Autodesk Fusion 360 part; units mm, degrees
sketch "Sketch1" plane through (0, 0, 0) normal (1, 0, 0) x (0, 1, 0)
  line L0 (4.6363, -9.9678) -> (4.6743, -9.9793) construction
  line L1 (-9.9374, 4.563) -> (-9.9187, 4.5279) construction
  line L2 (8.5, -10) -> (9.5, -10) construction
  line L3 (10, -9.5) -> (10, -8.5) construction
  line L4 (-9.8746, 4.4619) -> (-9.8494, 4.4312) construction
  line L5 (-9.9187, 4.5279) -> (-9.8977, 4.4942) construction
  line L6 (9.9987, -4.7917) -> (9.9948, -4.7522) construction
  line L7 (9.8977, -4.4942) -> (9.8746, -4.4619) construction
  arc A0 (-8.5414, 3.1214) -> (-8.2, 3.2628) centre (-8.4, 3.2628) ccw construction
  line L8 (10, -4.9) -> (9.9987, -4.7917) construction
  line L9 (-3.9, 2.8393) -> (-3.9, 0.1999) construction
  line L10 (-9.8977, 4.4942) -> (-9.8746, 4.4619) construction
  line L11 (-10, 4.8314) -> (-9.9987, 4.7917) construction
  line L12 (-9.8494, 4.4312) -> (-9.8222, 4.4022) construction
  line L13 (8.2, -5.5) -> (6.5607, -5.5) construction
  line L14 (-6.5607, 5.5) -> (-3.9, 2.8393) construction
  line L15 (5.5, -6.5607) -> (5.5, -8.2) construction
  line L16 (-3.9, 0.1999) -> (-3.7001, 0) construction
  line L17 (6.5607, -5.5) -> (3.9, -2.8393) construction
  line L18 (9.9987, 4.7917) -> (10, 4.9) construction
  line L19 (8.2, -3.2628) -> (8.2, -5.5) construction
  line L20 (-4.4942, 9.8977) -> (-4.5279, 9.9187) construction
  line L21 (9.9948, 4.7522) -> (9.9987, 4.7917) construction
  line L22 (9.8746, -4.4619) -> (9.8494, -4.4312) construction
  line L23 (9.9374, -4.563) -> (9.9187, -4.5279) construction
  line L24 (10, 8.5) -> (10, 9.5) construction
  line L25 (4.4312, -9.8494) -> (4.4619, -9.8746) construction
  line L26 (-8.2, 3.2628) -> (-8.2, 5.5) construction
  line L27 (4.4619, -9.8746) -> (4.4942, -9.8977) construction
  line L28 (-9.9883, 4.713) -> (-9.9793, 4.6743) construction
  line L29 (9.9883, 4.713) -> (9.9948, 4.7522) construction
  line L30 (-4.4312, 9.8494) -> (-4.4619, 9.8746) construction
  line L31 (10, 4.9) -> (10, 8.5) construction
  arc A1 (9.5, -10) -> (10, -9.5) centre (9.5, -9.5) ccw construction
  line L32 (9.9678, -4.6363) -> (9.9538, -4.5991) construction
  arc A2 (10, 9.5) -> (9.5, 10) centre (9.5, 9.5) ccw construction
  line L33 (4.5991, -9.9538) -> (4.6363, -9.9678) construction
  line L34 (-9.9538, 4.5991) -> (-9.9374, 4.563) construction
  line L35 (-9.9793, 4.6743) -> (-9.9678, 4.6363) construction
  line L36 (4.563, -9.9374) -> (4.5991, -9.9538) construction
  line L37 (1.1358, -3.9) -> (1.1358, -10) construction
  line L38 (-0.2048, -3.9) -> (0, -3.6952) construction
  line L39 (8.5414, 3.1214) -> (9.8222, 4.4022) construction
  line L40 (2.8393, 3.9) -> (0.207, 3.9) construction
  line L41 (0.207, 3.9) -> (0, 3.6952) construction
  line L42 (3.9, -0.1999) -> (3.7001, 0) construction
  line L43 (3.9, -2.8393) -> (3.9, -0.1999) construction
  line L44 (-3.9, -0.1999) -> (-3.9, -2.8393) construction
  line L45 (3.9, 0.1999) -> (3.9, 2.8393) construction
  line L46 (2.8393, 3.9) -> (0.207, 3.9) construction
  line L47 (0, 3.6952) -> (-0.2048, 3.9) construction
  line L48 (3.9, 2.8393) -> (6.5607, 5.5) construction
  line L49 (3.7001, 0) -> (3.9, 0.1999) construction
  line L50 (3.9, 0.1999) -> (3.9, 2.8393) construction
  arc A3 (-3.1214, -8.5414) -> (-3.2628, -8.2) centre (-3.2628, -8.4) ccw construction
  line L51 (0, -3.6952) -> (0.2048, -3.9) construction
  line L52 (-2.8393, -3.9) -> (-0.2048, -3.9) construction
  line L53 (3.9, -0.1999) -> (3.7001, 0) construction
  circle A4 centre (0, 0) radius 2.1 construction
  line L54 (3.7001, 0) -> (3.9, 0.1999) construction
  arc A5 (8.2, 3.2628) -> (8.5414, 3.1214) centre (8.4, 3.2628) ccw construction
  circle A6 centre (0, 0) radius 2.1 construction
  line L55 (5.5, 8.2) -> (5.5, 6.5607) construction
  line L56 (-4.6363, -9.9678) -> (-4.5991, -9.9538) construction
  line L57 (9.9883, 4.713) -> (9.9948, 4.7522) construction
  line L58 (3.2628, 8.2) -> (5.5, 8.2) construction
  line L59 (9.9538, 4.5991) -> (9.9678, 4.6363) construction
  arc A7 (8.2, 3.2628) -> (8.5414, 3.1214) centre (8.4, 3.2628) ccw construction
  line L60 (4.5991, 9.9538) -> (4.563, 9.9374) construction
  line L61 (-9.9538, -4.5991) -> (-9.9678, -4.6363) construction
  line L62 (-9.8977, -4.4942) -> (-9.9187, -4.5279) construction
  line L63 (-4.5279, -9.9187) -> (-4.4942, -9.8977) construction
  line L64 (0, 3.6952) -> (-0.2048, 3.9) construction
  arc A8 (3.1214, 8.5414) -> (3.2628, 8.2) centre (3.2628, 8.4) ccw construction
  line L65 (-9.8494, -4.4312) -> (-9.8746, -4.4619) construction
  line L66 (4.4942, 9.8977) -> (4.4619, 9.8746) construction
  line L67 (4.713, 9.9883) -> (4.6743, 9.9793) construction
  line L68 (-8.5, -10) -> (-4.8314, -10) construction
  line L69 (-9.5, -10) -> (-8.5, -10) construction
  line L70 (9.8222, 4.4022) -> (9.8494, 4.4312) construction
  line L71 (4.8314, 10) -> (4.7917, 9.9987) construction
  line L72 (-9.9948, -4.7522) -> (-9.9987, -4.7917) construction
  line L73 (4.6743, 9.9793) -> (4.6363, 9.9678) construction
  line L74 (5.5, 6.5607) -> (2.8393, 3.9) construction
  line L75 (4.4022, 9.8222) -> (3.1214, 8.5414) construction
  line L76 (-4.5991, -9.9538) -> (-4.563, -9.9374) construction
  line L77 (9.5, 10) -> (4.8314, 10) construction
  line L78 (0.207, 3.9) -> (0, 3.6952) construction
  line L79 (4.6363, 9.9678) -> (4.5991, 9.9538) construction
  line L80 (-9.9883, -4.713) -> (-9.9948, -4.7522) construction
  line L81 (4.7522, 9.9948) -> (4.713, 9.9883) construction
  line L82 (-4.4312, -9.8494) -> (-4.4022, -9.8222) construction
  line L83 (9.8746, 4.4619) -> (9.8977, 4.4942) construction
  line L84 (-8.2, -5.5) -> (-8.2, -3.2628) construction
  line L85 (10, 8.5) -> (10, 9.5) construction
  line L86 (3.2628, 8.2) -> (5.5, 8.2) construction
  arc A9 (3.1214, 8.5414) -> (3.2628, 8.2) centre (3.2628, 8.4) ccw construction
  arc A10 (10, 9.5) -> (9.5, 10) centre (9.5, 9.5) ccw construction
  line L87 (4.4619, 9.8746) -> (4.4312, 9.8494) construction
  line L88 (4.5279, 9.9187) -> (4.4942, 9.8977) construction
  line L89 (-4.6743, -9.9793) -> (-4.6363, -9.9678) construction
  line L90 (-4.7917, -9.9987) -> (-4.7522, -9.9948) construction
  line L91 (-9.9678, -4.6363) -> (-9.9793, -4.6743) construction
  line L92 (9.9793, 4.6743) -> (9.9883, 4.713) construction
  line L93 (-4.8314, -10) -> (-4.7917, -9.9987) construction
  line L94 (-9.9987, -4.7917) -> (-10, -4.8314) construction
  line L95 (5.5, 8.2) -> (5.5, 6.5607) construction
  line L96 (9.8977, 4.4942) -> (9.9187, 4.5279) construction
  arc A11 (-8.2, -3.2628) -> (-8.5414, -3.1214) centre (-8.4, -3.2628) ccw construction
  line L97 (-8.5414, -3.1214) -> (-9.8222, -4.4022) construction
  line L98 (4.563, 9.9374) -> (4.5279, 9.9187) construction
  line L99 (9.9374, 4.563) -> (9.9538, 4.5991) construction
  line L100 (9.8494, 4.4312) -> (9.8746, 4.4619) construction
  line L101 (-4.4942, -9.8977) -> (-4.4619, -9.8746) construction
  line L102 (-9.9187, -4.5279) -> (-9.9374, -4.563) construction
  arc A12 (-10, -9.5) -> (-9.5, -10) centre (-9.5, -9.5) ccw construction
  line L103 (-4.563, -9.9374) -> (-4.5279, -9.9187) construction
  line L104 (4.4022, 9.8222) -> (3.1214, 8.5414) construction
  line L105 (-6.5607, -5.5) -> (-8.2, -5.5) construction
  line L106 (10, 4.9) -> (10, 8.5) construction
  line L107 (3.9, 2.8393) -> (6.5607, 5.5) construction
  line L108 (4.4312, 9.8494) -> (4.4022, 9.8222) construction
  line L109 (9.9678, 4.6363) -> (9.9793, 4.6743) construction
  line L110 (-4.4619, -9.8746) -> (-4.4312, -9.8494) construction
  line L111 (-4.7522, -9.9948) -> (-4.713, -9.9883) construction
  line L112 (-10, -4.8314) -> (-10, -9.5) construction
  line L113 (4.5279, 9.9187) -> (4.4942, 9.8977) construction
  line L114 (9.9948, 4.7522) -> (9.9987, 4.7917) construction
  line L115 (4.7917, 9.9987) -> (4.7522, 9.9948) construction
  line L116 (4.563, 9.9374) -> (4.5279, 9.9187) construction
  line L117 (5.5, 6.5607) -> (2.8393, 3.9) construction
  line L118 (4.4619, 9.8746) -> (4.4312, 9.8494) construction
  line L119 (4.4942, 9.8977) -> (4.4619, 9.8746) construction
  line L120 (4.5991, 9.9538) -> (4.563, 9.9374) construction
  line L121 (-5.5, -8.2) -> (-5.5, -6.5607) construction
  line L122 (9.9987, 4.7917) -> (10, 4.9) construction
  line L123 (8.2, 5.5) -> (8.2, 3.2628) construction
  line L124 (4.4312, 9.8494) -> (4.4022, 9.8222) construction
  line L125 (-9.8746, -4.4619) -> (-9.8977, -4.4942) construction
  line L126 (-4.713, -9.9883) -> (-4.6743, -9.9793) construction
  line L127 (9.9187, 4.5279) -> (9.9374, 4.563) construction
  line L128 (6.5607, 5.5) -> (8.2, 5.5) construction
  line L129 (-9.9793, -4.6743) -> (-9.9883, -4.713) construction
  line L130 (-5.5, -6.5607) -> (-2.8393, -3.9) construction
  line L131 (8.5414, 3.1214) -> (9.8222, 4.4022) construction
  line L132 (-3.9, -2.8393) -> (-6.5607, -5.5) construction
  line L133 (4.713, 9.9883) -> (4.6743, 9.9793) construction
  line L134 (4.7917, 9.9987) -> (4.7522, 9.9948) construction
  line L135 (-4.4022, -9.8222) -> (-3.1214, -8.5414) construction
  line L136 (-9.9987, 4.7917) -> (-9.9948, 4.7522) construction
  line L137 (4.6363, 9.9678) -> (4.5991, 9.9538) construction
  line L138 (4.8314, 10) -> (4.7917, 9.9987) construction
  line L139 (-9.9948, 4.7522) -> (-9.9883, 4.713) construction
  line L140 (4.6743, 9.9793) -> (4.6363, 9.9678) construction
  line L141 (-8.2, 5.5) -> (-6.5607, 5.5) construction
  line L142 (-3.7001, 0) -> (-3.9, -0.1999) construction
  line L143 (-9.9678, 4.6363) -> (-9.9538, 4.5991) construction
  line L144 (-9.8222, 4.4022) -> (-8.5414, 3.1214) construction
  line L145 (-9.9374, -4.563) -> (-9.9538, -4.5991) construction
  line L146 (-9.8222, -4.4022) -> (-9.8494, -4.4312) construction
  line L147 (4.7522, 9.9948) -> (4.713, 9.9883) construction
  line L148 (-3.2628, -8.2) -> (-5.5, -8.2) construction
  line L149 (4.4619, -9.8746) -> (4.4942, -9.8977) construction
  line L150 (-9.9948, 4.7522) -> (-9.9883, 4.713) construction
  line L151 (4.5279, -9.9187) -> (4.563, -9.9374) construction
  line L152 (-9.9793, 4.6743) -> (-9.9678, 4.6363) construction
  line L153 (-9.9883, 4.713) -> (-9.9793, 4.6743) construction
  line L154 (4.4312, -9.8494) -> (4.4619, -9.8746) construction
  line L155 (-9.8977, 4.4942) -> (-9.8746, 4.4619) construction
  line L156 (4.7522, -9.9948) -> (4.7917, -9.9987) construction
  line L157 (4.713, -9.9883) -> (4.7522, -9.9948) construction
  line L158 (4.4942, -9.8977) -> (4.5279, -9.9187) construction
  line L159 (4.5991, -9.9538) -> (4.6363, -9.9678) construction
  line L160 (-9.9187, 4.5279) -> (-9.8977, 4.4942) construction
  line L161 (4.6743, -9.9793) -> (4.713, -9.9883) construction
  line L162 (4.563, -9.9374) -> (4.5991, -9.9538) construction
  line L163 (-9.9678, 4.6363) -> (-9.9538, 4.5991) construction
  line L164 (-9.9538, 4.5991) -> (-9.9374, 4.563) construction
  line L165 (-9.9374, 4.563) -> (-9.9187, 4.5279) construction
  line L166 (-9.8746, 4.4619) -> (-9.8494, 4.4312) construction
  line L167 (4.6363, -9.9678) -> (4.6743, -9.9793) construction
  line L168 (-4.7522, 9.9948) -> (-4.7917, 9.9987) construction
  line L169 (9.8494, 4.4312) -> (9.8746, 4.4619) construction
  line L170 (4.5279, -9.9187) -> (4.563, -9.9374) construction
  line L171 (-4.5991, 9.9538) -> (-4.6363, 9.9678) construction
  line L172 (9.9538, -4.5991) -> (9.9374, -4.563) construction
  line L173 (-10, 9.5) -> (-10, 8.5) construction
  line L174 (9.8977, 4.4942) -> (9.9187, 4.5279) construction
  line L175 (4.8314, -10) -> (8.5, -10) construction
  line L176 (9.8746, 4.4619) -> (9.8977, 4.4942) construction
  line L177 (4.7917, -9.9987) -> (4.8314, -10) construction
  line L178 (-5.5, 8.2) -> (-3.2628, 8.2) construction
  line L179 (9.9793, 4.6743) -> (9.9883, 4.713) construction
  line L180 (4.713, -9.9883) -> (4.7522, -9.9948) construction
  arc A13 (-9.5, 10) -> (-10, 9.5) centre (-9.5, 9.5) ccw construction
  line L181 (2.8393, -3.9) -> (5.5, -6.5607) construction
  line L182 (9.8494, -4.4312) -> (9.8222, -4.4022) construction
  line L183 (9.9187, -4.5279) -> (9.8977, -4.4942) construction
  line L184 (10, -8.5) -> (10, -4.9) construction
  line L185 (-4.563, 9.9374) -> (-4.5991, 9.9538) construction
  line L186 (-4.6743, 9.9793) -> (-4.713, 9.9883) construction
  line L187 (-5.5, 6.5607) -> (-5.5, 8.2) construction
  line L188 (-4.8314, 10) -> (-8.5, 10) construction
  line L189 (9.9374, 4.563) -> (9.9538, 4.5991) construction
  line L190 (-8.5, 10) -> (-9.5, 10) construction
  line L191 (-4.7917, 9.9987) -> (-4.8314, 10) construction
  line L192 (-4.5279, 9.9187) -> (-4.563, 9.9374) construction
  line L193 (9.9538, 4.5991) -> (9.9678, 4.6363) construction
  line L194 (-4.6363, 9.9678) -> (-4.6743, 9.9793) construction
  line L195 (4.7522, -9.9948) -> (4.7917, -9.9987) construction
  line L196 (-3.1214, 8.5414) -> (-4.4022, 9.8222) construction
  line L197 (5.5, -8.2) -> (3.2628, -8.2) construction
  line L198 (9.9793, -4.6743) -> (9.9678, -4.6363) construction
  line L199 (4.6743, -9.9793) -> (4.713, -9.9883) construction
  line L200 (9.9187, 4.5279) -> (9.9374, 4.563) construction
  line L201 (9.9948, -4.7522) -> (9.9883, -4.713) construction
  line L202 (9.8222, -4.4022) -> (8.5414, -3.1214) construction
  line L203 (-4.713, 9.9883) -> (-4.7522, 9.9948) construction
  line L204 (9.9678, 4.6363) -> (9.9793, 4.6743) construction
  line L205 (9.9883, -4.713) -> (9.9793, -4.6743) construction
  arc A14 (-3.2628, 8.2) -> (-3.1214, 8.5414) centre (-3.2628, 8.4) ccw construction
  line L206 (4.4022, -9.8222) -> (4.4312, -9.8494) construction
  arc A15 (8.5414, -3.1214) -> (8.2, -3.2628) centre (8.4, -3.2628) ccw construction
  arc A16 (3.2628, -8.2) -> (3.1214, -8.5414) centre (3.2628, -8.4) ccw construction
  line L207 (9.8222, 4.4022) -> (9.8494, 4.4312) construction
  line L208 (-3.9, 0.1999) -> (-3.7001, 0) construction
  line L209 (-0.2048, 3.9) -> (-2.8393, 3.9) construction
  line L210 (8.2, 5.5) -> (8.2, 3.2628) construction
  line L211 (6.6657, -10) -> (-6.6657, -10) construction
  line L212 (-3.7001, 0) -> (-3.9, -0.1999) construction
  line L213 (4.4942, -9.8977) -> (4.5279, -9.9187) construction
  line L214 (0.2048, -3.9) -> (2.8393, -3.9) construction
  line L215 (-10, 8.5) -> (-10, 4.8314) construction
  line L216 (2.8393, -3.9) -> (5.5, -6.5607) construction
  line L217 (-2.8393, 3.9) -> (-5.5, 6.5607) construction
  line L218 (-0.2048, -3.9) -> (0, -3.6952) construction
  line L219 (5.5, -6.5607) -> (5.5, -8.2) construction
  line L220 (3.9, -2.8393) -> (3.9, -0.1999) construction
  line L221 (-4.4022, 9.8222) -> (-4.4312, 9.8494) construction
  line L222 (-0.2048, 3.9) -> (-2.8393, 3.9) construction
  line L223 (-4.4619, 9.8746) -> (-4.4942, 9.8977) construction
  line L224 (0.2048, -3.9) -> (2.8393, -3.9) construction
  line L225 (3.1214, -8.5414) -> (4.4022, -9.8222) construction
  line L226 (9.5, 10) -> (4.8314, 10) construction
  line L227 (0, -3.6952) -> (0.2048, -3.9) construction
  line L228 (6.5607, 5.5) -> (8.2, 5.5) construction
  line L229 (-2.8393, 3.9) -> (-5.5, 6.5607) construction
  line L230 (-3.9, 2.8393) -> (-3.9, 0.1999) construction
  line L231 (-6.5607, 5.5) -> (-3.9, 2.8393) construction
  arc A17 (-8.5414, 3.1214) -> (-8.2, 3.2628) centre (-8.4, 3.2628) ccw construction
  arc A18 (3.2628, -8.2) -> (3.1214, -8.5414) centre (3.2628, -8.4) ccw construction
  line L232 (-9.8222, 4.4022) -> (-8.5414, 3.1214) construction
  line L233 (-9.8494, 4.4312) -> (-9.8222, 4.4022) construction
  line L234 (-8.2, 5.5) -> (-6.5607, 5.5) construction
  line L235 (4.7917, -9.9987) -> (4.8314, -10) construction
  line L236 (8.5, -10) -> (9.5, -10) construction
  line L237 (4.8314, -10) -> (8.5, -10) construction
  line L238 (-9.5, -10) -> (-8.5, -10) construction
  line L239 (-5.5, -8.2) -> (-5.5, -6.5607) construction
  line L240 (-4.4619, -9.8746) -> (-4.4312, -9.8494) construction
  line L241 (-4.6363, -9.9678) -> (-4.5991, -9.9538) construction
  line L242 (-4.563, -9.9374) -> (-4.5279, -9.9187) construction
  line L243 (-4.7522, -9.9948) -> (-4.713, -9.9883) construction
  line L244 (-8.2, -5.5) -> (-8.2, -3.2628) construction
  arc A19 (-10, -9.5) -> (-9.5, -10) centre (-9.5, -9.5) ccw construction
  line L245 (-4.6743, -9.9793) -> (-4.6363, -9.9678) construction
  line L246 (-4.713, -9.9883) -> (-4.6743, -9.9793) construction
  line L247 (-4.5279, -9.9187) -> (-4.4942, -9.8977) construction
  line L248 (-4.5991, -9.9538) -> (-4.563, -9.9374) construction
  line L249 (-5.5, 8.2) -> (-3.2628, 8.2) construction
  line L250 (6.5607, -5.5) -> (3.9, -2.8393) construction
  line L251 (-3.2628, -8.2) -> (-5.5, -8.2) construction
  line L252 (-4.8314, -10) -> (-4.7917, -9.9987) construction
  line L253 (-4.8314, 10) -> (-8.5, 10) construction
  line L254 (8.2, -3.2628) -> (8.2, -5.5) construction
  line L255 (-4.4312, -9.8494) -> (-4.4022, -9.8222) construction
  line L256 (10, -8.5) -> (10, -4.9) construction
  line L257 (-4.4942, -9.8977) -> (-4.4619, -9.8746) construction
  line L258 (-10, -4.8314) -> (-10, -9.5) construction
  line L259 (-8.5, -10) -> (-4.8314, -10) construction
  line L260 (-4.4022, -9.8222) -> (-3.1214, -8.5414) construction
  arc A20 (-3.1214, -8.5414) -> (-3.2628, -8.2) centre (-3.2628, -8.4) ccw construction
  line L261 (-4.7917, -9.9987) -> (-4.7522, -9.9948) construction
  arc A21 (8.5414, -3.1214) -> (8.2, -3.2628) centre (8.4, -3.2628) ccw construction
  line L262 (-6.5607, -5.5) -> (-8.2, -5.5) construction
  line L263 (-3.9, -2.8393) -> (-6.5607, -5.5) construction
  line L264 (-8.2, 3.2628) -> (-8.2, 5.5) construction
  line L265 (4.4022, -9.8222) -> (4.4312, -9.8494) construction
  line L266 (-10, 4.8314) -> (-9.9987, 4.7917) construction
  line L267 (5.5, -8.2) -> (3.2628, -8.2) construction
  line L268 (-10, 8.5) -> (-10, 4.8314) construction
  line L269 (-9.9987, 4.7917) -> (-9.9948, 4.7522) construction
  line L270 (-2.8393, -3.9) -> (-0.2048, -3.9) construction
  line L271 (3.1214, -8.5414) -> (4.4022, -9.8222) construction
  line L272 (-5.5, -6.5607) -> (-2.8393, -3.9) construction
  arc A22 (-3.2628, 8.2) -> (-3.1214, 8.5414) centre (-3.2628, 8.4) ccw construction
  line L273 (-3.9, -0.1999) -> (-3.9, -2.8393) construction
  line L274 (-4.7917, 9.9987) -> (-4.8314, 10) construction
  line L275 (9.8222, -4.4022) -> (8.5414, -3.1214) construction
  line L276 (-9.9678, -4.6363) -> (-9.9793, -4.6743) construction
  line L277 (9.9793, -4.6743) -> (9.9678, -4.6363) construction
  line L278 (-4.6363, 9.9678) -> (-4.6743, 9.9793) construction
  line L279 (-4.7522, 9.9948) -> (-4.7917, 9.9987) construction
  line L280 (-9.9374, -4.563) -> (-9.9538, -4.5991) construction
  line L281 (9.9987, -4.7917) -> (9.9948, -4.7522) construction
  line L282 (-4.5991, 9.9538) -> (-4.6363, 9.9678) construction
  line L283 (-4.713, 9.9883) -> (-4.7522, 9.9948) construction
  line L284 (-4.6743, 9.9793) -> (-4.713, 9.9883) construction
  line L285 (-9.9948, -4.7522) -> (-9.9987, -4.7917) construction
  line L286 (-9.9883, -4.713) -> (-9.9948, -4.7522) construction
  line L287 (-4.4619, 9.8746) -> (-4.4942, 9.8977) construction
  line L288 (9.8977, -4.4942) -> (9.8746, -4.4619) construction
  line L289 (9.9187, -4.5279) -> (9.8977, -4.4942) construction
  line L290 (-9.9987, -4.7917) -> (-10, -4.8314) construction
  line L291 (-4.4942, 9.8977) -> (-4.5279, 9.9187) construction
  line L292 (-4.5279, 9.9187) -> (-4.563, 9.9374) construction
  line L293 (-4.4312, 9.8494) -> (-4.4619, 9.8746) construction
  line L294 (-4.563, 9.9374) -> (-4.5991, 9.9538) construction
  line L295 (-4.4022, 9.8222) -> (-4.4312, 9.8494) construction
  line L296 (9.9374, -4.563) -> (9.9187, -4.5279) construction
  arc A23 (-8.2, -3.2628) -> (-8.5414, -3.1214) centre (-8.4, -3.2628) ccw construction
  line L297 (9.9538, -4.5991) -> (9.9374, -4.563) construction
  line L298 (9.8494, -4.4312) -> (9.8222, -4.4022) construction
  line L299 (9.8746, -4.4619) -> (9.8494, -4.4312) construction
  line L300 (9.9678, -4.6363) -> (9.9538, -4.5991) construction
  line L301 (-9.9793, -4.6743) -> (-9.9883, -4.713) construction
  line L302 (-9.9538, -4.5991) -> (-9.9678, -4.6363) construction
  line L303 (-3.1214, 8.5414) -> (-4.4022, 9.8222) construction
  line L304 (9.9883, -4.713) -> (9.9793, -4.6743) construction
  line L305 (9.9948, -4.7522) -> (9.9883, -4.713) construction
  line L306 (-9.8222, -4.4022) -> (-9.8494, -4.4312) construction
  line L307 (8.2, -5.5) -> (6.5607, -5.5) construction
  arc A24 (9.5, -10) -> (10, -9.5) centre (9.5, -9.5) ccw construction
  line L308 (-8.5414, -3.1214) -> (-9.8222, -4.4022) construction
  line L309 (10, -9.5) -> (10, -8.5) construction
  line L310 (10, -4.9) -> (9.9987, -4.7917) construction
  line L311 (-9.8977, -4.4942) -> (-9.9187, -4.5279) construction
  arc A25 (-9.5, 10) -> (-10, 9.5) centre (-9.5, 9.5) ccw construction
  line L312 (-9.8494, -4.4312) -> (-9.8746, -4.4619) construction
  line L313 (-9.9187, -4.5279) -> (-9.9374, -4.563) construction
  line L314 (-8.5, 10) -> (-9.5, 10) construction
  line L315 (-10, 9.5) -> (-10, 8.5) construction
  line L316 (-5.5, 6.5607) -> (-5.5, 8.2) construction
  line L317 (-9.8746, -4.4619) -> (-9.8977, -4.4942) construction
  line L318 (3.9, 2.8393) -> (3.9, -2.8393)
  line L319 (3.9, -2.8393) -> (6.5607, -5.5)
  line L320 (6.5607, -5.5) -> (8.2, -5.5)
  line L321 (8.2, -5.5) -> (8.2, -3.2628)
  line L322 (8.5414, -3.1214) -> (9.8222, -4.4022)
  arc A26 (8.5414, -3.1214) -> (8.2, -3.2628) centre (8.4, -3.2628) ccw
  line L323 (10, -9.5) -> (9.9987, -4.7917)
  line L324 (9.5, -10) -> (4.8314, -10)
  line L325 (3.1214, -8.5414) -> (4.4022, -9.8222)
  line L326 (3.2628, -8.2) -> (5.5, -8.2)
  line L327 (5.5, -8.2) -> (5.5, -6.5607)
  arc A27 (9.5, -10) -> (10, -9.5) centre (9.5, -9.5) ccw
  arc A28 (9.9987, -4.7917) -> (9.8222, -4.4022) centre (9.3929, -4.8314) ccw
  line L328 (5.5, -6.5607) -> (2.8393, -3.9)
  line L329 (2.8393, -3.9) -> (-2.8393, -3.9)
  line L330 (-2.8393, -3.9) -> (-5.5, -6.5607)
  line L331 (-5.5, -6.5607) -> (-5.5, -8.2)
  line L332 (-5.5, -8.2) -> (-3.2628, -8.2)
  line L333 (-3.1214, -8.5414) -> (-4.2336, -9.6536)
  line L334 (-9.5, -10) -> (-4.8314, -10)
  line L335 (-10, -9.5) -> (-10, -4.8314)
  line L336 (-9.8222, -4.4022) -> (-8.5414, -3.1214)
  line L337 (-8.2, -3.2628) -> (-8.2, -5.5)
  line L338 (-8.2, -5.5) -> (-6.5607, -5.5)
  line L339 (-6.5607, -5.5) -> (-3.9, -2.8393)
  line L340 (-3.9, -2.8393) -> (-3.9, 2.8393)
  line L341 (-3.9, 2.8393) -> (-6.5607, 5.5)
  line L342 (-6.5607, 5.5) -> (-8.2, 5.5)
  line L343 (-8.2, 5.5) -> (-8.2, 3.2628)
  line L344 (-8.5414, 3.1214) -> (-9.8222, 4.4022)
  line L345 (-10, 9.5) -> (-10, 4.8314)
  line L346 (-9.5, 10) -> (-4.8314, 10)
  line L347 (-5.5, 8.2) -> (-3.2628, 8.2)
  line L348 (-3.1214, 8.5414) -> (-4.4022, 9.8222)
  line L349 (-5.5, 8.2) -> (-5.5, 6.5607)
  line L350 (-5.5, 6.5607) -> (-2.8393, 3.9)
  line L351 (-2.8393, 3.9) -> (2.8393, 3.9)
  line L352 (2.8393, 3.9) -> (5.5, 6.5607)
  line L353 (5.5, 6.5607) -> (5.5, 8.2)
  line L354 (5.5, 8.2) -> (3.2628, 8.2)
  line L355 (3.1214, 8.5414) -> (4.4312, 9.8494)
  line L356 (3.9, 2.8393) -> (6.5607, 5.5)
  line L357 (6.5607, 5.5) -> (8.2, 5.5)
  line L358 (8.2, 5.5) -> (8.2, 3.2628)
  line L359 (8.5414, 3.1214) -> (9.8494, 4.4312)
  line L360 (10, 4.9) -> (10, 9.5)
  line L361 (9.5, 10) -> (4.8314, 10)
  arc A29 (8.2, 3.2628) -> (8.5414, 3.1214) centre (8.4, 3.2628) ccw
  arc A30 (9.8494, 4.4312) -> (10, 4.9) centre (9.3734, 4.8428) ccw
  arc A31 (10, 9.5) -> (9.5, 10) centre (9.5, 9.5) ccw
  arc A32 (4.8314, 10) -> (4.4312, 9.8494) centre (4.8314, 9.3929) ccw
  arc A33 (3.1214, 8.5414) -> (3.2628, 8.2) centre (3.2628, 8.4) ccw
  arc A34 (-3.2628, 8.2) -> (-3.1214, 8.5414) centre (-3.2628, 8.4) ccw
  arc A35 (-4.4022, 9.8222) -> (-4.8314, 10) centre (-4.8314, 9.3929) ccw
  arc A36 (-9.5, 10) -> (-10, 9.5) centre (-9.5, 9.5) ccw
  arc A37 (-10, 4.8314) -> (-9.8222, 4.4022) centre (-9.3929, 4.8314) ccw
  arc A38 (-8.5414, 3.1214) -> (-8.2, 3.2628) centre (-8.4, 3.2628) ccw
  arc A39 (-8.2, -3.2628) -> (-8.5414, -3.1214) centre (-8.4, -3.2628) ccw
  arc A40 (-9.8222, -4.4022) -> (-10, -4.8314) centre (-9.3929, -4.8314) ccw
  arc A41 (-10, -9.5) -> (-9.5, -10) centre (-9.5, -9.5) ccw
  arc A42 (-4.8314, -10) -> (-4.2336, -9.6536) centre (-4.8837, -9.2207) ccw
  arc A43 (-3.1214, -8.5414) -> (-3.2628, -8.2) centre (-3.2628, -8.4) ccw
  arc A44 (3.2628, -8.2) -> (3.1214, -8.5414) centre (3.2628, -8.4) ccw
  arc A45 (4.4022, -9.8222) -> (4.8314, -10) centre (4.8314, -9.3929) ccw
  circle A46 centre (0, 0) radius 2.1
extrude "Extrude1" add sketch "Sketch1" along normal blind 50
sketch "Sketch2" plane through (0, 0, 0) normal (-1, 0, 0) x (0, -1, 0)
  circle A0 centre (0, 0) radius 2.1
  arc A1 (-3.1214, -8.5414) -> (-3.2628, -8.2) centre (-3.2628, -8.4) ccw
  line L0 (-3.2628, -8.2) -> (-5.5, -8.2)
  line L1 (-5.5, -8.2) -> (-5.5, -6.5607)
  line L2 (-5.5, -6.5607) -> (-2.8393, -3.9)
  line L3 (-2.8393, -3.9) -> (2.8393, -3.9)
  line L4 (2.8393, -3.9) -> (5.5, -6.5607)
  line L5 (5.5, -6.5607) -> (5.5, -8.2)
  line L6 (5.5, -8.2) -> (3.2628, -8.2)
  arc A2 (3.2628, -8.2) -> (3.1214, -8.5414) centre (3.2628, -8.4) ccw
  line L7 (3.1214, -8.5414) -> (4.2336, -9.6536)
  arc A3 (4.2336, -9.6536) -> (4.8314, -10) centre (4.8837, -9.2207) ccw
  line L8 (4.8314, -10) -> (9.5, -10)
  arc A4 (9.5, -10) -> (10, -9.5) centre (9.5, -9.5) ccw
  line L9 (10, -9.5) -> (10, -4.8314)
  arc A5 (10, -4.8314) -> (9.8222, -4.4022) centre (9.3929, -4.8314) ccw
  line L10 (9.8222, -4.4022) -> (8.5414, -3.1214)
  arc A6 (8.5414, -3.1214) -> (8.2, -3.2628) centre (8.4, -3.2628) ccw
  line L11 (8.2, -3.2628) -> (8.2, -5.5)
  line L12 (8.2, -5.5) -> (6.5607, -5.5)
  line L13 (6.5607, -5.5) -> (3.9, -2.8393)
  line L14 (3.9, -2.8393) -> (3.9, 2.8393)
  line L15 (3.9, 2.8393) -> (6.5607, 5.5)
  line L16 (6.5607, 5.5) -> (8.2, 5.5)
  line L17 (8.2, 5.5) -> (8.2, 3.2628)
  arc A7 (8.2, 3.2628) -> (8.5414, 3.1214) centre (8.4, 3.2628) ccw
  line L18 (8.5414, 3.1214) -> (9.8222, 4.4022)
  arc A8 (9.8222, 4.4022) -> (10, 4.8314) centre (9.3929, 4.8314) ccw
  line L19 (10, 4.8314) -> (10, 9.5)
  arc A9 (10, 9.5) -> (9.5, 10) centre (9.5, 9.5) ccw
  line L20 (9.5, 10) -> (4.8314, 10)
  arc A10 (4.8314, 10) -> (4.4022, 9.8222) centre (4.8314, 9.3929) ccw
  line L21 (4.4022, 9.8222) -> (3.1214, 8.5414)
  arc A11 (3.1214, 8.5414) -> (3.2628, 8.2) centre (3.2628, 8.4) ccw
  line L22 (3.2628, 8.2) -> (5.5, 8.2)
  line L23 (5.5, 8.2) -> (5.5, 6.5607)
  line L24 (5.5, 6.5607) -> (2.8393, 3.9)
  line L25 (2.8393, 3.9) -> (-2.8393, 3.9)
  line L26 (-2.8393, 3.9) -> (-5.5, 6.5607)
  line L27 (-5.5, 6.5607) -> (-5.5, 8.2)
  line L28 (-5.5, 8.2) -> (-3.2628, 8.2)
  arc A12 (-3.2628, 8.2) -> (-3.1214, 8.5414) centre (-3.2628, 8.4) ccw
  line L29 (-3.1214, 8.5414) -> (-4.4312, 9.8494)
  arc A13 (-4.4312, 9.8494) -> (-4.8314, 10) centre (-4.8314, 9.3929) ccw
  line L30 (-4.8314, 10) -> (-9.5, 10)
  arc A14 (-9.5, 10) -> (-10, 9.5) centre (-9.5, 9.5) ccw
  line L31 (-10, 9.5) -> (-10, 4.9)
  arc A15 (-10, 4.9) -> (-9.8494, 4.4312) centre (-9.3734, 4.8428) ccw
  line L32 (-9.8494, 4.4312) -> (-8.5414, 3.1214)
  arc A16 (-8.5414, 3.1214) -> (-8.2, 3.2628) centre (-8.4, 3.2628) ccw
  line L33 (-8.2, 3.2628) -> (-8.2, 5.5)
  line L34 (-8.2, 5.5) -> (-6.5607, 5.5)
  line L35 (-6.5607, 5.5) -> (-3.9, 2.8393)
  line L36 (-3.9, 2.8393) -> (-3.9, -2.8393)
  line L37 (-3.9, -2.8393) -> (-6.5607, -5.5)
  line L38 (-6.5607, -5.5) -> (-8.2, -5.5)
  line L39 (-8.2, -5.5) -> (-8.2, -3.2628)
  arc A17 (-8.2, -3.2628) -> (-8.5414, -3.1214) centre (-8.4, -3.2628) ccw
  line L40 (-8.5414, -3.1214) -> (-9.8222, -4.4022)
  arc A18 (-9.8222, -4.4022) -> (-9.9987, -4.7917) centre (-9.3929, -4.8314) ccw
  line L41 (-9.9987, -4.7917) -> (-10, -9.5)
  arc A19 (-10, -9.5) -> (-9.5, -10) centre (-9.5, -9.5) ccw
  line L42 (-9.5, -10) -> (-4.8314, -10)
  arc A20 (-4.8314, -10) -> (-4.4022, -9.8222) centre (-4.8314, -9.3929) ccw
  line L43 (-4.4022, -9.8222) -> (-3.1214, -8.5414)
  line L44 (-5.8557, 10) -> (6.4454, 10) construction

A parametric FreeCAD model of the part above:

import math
import FreeCAD as App
import Part
import Sketcher

V = App.Vector
Q = App.Units.Quantity

doc = App.newDocument("Part")
params = doc.addObject("Spreadsheet::Sheet", "Params")
for row, (alias, value) in enumerate([
    ("sketch1_diameter", "4.2 mm"),
    ("sketch1_radius", "0.2 mm"),
    ("sketch1_radius2", "0.5 mm"),
    ("sketch1_radius3", "0.2 mm"),
    ("sketch1_radius4", "0.2 mm"),
    ("pad1_length", "50 mm"),
], start=1):
    params.set(f"A{row}", alias)
    params.set(f"B{row}", "=" + value)
    params.setAlias(f"B{row}", alias)

body = doc.addObject("PartDesign::Body", "Body")

# Sketch on YZ plane
sketch1 = body.newObject("Sketcher::SketchObject", "Sketch")
sketch1.AttachmentSupport = (doc.getObject("YZ_Plane"), [""])
sketch1.MapMode = "FlatFace"
sketch1.addGeometry([
    Part.LineSegment(V(3.9, -2.8393, 0), V(3.9, 2.8393, 0)),  # 0
    Part.LineSegment(V(3.9, 2.8393, 0), V(6.5607, 5.5, 0)),  # 1
    Part.LineSegment(V(6.5607, 5.5, 0), V(8.2, 5.5, 0)),  # 2
    Part.LineSegment(V(8.2, 5.5, 0), V(8.2, 3.2628, 0)),  # 3
    Part.ArcOfCircle(Part.Circle(V(8.4, 3.2628, 0), V(0, 0, 1), 0.2), math.radians(180), math.radians(315)),  # 4
    Part.LineSegment(V(8.5414, 3.1214, 0), V(9.8494, 4.4312, 0)),  # 5
    Part.ArcOfCircle(Part.Circle(V(9.3734, 4.8428, 0), V(0, 0, 1), 0.629278), math.radians(-40.850165), math.radians(5.215864)),  # 6
    Part.LineSegment(V(10, 4.9, 0), V(10, 9.5, 0)),  # 7
    Part.ArcOfCircle(Part.Circle(V(9.5, 9.5, 0), V(0, 0, 1), 0.5), math.radians(0), math.radians(90)),  # 8
    Part.LineSegment(V(9.5, 10, 0), V(4.8314, 10, 0)),  # 9
    Part.ArcOfCircle(Part.Circle(V(4.8314, 9.3929, 0), V(0, 0, 1), 0.6071), math.radians(90), math.radians(131.240083)),  # 10
    Part.LineSegment(V(4.4312, 9.8494, 0), V(3.1214, 8.5414, 0)),  # 11
    Part.ArcOfCircle(Part.Circle(V(3.2628, 8.4, 0), V(0, 0, 1), 0.19997), math.radians(135), math.radians(270)),  # 12
    Part.LineSegment(V(3.2628, 8.2, 0), V(5.5, 8.2, 0)),  # 13
    Part.LineSegment(V(5.5, 8.2, 0), V(5.5, 6.5607, 0)),  # 14
    Part.LineSegment(V(5.5, 6.5607, 0), V(2.8393, 3.9, 0)),  # 15
    Part.LineSegment(V(2.8393, 3.9, 0), V(-2.8393, 3.9, 0)),  # 16
    Part.LineSegment(V(-2.8393, 3.9, 0), V(-5.5, 6.5607, 0)),  # 17
    Part.LineSegment(V(-5.5, 6.5607, 0), V(-5.5, 8.2, 0)),  # 18
    Part.LineSegment(V(-5.5, 8.2, 0), V(-3.2628, 8.2, 0)),  # 19
    Part.ArcOfCircle(Part.Circle(V(-3.2628, 8.4, 0), V(0, 0, 1), 0.2), math.radians(-90), math.radians(45)),  # 20
    Part.LineSegment(V(-3.1214, 8.5414, 0), V(-4.4022, 9.8222, 0)),  # 21
    Part.ArcOfCircle(Part.Circle(V(-4.8314, 9.3929, 0), V(0, 0, 1), 0.607051), math.radians(45.006674), math.radians(90)),  # 22
    Part.LineSegment(V(-4.8314, 10, 0), V(-9.5, 10, 0)),  # 23
    Part.ArcOfCircle(Part.Circle(V(-9.5, 9.5, 0), V(0, 0, 1), 0.5), math.radians(90), math.radians(180)),  # 24
    Part.LineSegment(V(-10, 9.5, 0), V(-10, 4.8314, 0)),  # 25
    Part.ArcOfCircle(Part.Circle(V(-9.3929, 4.8314, 0), V(0, 0, 1), 0.6071), math.radians(180), math.radians(224.993326)),  # 26
    Part.LineSegment(V(-9.8222, 4.4022, 0), V(-8.5414, 3.1214, 0)),  # 27
    Part.ArcOfCircle(Part.Circle(V(-8.4, 3.2628, 0), V(0, 0, 1), 0.19997), math.radians(-135), math.radians(0)),  # 28
    Part.LineSegment(V(-8.2, 3.2628, 0), V(-8.2, 5.5, 0)),  # 29
    Part.LineSegment(V(-8.2, 5.5, 0), V(-6.5607, 5.5, 0)),  # 30
    Part.LineSegment(V(-6.5607, 5.5, 0), V(-3.9, 2.8393, 0)),  # 31
    Part.LineSegment(V(-3.9, 2.8393, 0), V(-3.9, -2.8393, 0)),  # 32
    Part.LineSegment(V(-3.9, -2.8393, 0), V(-6.5607, -5.5, 0)),  # 33
    Part.LineSegment(V(-6.5607, -5.5, 0), V(-8.2, -5.5, 0)),  # 34
    Part.LineSegment(V(-8.2, -5.5, 0), V(-8.2, -3.2628, 0)),  # 35
    Part.ArcOfCircle(Part.Circle(V(-8.4, -3.2628, 0), V(0, 0, 1), 0.2), math.radians(0), math.radians(135)),  # 36
    Part.LineSegment(V(-8.5414, -3.1214, 0), V(-9.8222, -4.4022, 0)),  # 37
    Part.ArcOfCircle(Part.Circle(V(-9.3929, -4.8314, 0), V(0, 0, 1), 0.607051), math.radians(135.006674), math.radians(180)),  # 38
    Part.LineSegment(V(-10, -4.8314, 0), V(-10, -9.5, 0)),  # 39
    Part.ArcOfCircle(Part.Circle(V(-9.5, -9.5, 0), V(0, 0, 1), 0.5), math.radians(180), math.radians(270)),  # 40
    Part.LineSegment(V(-9.5, -10, 0), V(-4.8314, -10, 0)),  # 41
    Part.ArcOfCircle(Part.Circle(V(-4.8837, -9.2207, 0), V(0, 0, 1), 0.781053), math.radians(-86.160551), math.radians(-33.659549)),  # 42
    Part.LineSegment(V(-4.2336, -9.6536, 0), V(-3.1214, -8.5414, 0)),  # 43
    Part.ArcOfCircle(Part.Circle(V(-3.2628, -8.4, 0), V(0, 0, 1), 0.19997), math.radians(-45), math.radians(90)),  # 44
    Part.LineSegment(V(-3.2628, -8.2, 0), V(-5.5, -8.2, 0)),  # 45
    Part.LineSegment(V(-5.5, -8.2, 0), V(-5.5, -6.5607, 0)),  # 46
    Part.LineSegment(V(-5.5, -6.5607, 0), V(-2.8393, -3.9, 0)),  # 47
    Part.LineSegment(V(-2.8393, -3.9, 0), V(2.8393, -3.9, 0)),  # 48
    Part.LineSegment(V(2.8393, -3.9, 0), V(5.5, -6.5607, 0)),  # 49
    Part.LineSegment(V(5.5, -6.5607, 0), V(5.5, -8.2, 0)),  # 50
    Part.LineSegment(V(5.5, -8.2, 0), V(3.2628, -8.2, 0)),  # 51
    Part.ArcOfCircle(Part.Circle(V(3.2628, -8.4, 0), V(0, 0, 1), 0.2), math.radians(90), math.radians(225)),  # 52
    Part.LineSegment(V(3.1214, -8.5414, 0), V(4.4022, -9.8222, 0)),  # 53
    Part.ArcOfCircle(Part.Circle(V(4.8314, -9.3929, 0), V(0, 0, 1), 0.607051), math.radians(-134.993326), math.radians(-90)),  # 54
    Part.LineSegment(V(4.8314, -10, 0), V(9.5, -10, 0)),  # 55
    Part.ArcOfCircle(Part.Circle(V(9.5, -9.5, 0), V(0, 0, 1), 0.5), math.radians(-90), math.radians(0)),  # 56
    Part.LineSegment(V(10, -9.5, 0), V(9.9987, -4.7917, 0)),  # 57
    Part.ArcOfCircle(Part.Circle(V(9.3929, -4.8314, 0), V(0, 0, 1), 0.607099), math.radians(3.749413), math.radians(44.993326)),  # 58
    Part.LineSegment(V(9.8222, -4.4022, 0), V(8.5414, -3.1214, 0)),  # 59
    Part.ArcOfCircle(Part.Circle(V(8.4, -3.2628, 0), V(0, 0, 1), 0.19997), math.radians(45), math.radians(180)),  # 60
    Part.LineSegment(V(8.2, -3.2628, 0), V(8.2, -5.5, 0)),  # 61
    Part.LineSegment(V(8.2, -5.5, 0), V(6.5607, -5.5, 0)),  # 62
    Part.LineSegment(V(6.5607, -5.5, 0), V(3.9, -2.8393, 0)),  # 63
    Part.Circle(V(0, 0, 0), V(0, 0, 1), 2.1),  # 64
], False)
sketch1.addConstraint([
    Sketcher.Constraint("Coincident", 0, 2, 1, 1),
    Sketcher.Constraint("Coincident", 1, 2, 2, 1),
    Sketcher.Constraint("Coincident", 2, 2, 3, 1),
    Sketcher.Constraint("Coincident", 3, 2, 4, 1),
    Sketcher.Constraint("Coincident", 4, 2, 5, 1),
    Sketcher.Constraint("Coincident", 5, 2, 6, 1),
    Sketcher.Constraint("Coincident", 6, 2, 7, 1),
    Sketcher.Constraint("Coincident", 7, 2, 8, 1),
    Sketcher.Constraint("Coincident", 8, 2, 9, 1),
    Sketcher.Constraint("Coincident", 9, 2, 10, 1),
    Sketcher.Constraint("Coincident", 10, 2, 11, 1),
    Sketcher.Constraint("Coincident", 11, 2, 12, 1),
    Sketcher.Constraint("Coincident", 12, 2, 13, 1),
    Sketcher.Constraint("Coincident", 13, 2, 14, 1),
    Sketcher.Constraint("Coincident", 14, 2, 15, 1),
    Sketcher.Constraint("Coincident", 15, 2, 16, 1),
    Sketcher.Constraint("Coincident", 16, 2, 17, 1),
    Sketcher.Constraint("Coincident", 17, 2, 18, 1),
    Sketcher.Constraint("Coincident", 18, 2, 19, 1),
    Sketcher.Constraint("Coincident", 19, 2, 20, 1),
    Sketcher.Constraint("Coincident", 20, 2, 21, 1),
    Sketcher.Constraint("Coincident", 21, 2, 22, 1),
    Sketcher.Constraint("Coincident", 22, 2, 23, 1),
    Sketcher.Constraint("Coincident", 23, 2, 24, 1),
    Sketcher.Constraint("Coincident", 24, 2, 25, 1),
    Sketcher.Constraint("Coincident", 25, 2, 26, 1),
    Sketcher.Constraint("Coincident", 26, 2, 27, 1),
    Sketcher.Constraint("Coincident", 27, 2, 28, 1),
    Sketcher.Constraint("Coincident", 28, 2, 29, 1),
    Sketcher.Constraint("Coincident", 29, 2, 30, 1),
    Sketcher.Constraint("Coincident", 30, 2, 31, 1),
    Sketcher.Constraint("Coincident", 31, 2, 32, 1),
    Sketcher.Constraint("Coincident", 32, 2, 33, 1),
    Sketcher.Constraint("Coincident", 33, 2, 34, 1),
    Sketcher.Constraint("Coincident", 34, 2, 35, 1),
    Sketcher.Constraint("Coincident", 35, 2, 36, 1),
    Sketcher.Constraint("Coincident", 36, 2, 37, 1),
    Sketcher.Constraint("Coincident", 37, 2, 38, 1),
    Sketcher.Constraint("Coincident", 38, 2, 39, 1),
    Sketcher.Constraint("Coincident", 39, 2, 40, 1),
    Sketcher.Constraint("Coincident", 40, 2, 41, 1),
    Sketcher.Constraint("Coincident", 41, 2, 42, 1),
    Sketcher.Constraint("Coincident", 42, 2, 43, 1),
    Sketcher.Constraint("Coincident", 43, 2, 44, 1),
    Sketcher.Constraint("Coincident", 44, 2, 45, 1),
    Sketcher.Constraint("Coincident", 45, 2, 46, 1),
    Sketcher.Constraint("Coincident", 46, 2, 47, 1),
    Sketcher.Constraint("Coincident", 47, 2, 48, 1),
    Sketcher.Constraint("Coincident", 48, 2, 49, 1),
    Sketcher.Constraint("Coincident", 49, 2, 50, 1),
    Sketcher.Constraint("Coincident", 50, 2, 51, 1),
    Sketcher.Constraint("Coincident", 51, 2, 52, 1),
    Sketcher.Constraint("Coincident", 52, 2, 53, 1),
    Sketcher.Constraint("Coincident", 53, 2, 54, 1),
    Sketcher.Constraint("Coincident", 54, 2, 55, 1),
    Sketcher.Constraint("Coincident", 55, 2, 56, 1),
    Sketcher.Constraint("Coincident", 56, 2, 57, 1),
    Sketcher.Constraint("Coincident", 57, 2, 58, 1),
    Sketcher.Constraint("Coincident", 58, 2, 59, 1),
    Sketcher.Constraint("Coincident", 59, 2, 60, 1),
    Sketcher.Constraint("Coincident", 60, 2, 61, 1),
    Sketcher.Constraint("Coincident", 61, 2, 62, 1),
    Sketcher.Constraint("Coincident", 62, 2, 63, 1),
    Sketcher.Constraint("Coincident", 63, 2, 0, 1),
    Sketcher.Constraint("Vertical", 0),
    Sketcher.Constraint("Horizontal", 2),
    Sketcher.Constraint("Vertical", 3),
    Sketcher.Constraint("Vertical", 7),
    Sketcher.Constraint("Horizontal", 9),
    Sketcher.Constraint("Horizontal", 13),
    Sketcher.Constraint("Vertical", 14),
    Sketcher.Constraint("Horizontal", 16),
    Sketcher.Constraint("Vertical", 18),
    Sketcher.Constraint("Horizontal", 19),
    Sketcher.Constraint("Horizontal", 23),
    Sketcher.Constraint("Vertical", 25),
    Sketcher.Constraint("Vertical", 29),
    Sketcher.Constraint("Horizontal", 30),
    Sketcher.Constraint("Vertical", 32),
    Sketcher.Constraint("Horizontal", 34),
    Sketcher.Constraint("Vertical", 35),
    Sketcher.Constraint("Vertical", 39),
    Sketcher.Constraint("Horizontal", 41),
    Sketcher.Constraint("Horizontal", 45),
    Sketcher.Constraint("Vertical", 46),
    Sketcher.Constraint("Horizontal", 48),
    Sketcher.Constraint("Vertical", 50),
    Sketcher.Constraint("Horizontal", 51),
    Sketcher.Constraint("Horizontal", 55),
    Sketcher.Constraint("Vertical", 61),
    Sketcher.Constraint("Horizontal", 62),
    Sketcher.Constraint("Coincident", 64, 3, -1, 1),
    Sketcher.Constraint("Diameter", 64, Q("4.2 mm")),
    Sketcher.Constraint("Radius", 4, Q("0.2 mm")),
    Sketcher.Constraint("Radius", 8, Q("0.5 mm")),
    Sketcher.Constraint("Radius", 12, Q("0.2 mm")),
    Sketcher.Constraint("Radius", 20, Q("0.2 mm")),
    Sketcher.Constraint("Radius", 24, Q("0.5 mm")),
    Sketcher.Constraint("Radius", 28, Q("0.2 mm")),
    Sketcher.Constraint("Radius", 36, Q("0.2 mm")),
    Sketcher.Constraint("Radius", 40, Q("0.5 mm")),
    Sketcher.Constraint("Radius", 44, Q("0.2 mm")),
    Sketcher.Constraint("Radius", 52, Q("0.2 mm")),
    Sketcher.Constraint("Radius", 56, Q("0.5 mm")),
    Sketcher.Constraint("Radius", 60, Q("0.2 mm")),
    Sketcher.Constraint("DistanceY", 7, 1, 7, 2, Q("4.6 mm")),
    Sketcher.Constraint("DistanceX", -1, 1, 6, 2, Q("10 mm")),
    Sketcher.Constraint("DistanceY", -1, 1, 8, 2, Q("10 mm")),
    Sketcher.Constraint("DistanceY", -1, 1, 22, 2, Q("10 mm")),
    Sketcher.Constraint("DistanceX", 24, 2, -1, 1, Q("10 mm")),
    Sketcher.Constraint("DistanceX", 38, 2, -1, 1, Q("10 mm")),
    Sketcher.Constraint("DistanceY", 40, 2, -1, 1, Q("10 mm")),
    Sketcher.Constraint("DistanceY", 54, 2, -1, 1, Q("10 mm")),
    Sketcher.Constraint("DistanceX", -1, 1, 56, 2, Q("10 mm")),
    Sketcher.Constraint("Radius", 10, Q("0.607 mm")),
    Sketcher.Constraint("Radius", 22, Q("0.607 mm")),
    Sketcher.Constraint("Radius", 26, Q("0.607 mm")),
    Sketcher.Constraint("Radius", 38, Q("0.607 mm")),
    Sketcher.Constraint("Radius", 42, Q("0.781 mm")),
    Sketcher.Constraint("Radius", 54, Q("0.607 mm")),
    Sketcher.Constraint("Radius", 58, Q("0.607 mm")),
    Sketcher.Constraint("DistanceX", -1, 1, 4, 3, Q("8.4 mm")),
    Sketcher.Constraint("DistanceY", -1, 1, 12, 3, Q("8.4 mm")),
    Sketcher.Constraint("DistanceY", -1, 1, 20, 3, Q("8.4 mm")),
    Sketcher.Constraint("DistanceX", 28, 3, -1, 1, Q("8.4 mm")),
    Sketcher.Constraint("DistanceX", 36, 3, -1, 1, Q("8.4 mm")),
    Sketcher.Constraint("DistanceY", 44, 3, -1, 1, Q("8.4 mm")),
    Sketcher.Constraint("DistanceY", 52, 3, -1, 1, Q("8.4 mm")),
    Sketcher.Constraint("DistanceX", -1, 1, 60, 3, Q("8.4 mm")),
    Sketcher.Constraint("DistanceX", -1, 1, 0, 2, Q("3.9 mm")),
    Sketcher.Constraint("DistanceY", -1, 1, 1, 2, Q("5.5 mm")),
    Sketcher.Constraint("DistanceY", -1, 1, 6, 2, Q("4.9 mm")),
    Sketcher.Constraint("DistanceX", -1, 1, 8, 2, Q("9.5 mm")),
    Sketcher.Constraint("DistanceX", -1, 1, 13, 2, Q("5.5 mm")),
    Sketcher.Constraint("DistanceY", -1, 1, 15, 2, Q("3.9 mm")),
    Sketcher.Constraint("DistanceX", 17, 2, -1, 1, Q("5.5 mm")),
    Sketcher.Constraint("DistanceX", 23, 2, -1, 1, Q("9.5 mm")),
    Sketcher.Constraint("DistanceY", -1, 1, 24, 2, Q("9.5 mm")),
    Sketcher.Constraint("DistanceY", -1, 1, 29, 2, Q("5.5 mm")),
    Sketcher.Constraint("DistanceX", 31, 2, -1, 1, Q("3.9 mm")),
    Sketcher.Constraint("DistanceY", 33, 2, -1, 1, Q("5.5 mm")),
    Sketcher.Constraint("DistanceY", 39, 2, -1, 1, Q("9.5 mm")),
    Sketcher.Constraint("DistanceX", 40, 2, -1, 1, Q("9.5 mm")),
    Sketcher.Constraint("DistanceX", 45, 2, -1, 1, Q("5.5 mm")),
    Sketcher.Constraint("DistanceY", 47, 2, -1, 1, Q("3.9 mm")),
    Sketcher.Constraint("DistanceX", -1, 1, 49, 2, Q("5.5 mm")),
    Sketcher.Constraint("DistanceX", -1, 1, 55, 2, Q("9.5 mm")),
    Sketcher.Constraint("DistanceY", 56, 2, -1, 1, Q("9.5 mm")),
    Sketcher.Constraint("DistanceY", 61, 2, -1, 1, Q("5.5 mm")),
    Sketcher.Constraint("Radius", 6, Q("0.6293 mm")),
    Sketcher.Constraint("Distance", 5, Q("1.851 mm")),
    Sketcher.Constraint("Distance", 11, Q("1.851 mm")),
    Sketcher.Constraint("Distance", 43, Q("1.573 mm")),
    Sketcher.Constraint("DistanceX", 2, 1, 2, 2, Q("1.6393 mm")),
    Sketcher.Constraint("DistanceX", 9, 2, 9, 1, Q("4.6686 mm")),
    Sketcher.Constraint("DistanceX", 13, 1, 13, 2, Q("2.2372 mm")),
    Sketcher.Constraint("DistanceX", 16, 2, 16, 1, Q("5.6786 mm")),
    Sketcher.Constraint("DistanceX", 19, 1, 19, 2, Q("2.2372 mm")),
    Sketcher.Constraint("DistanceX", 23, 2, 23, 1, Q("4.6686 mm")),
    Sketcher.Constraint("DistanceX", 30, 1, 30, 2, Q("1.6393 mm")),
    Sketcher.Constraint("DistanceX", 34, 2, 34, 1, Q("1.6393 mm")),
    Sketcher.Constraint("DistanceX", 41, 1, 41, 2, Q("4.6686 mm")),
    Sketcher.Constraint("DistanceX", 45, 2, 45, 1, Q("2.2372 mm")),
    Sketcher.Constraint("DistanceX", 48, 1, 48, 2, Q("5.6786 mm")),
    Sketcher.Constraint("DistanceX", 51, 2, 51, 1, Q("2.2372 mm")),
    Sketcher.Constraint("DistanceX", 55, 1, 55, 2, Q("4.6686 mm")),
    Sketcher.Constraint("DistanceX", 62, 2, 62, 1, Q("1.6393 mm")),
    Sketcher.Constraint("DistanceY", 0, 1, 0, 2, Q("5.6786 mm")),
    Sketcher.Constraint("DistanceY", 3, 2, 3, 1, Q("2.2372 mm")),
    Sketcher.Constraint("DistanceY", 14, 2, 14, 1, Q("1.6393 mm")),
    Sketcher.Constraint("DistanceY", 18, 1, 18, 2, Q("1.6393 mm")),
    Sketcher.Constraint("DistanceY", 25, 2, 25, 1, Q("4.6686 mm")),
    Sketcher.Constraint("DistanceY", 29, 1, 29, 2, Q("2.2372 mm")),
    Sketcher.Constraint("DistanceY", 32, 2, 32, 1, Q("5.6786 mm")),
    Sketcher.Constraint("DistanceY", 35, 1, 35, 2, Q("2.2372 mm")),
    Sketcher.Constraint("DistanceY", 39, 2, 39, 1, Q("4.6686 mm")),
    Sketcher.Constraint("DistanceY", 46, 1, 46, 2, Q("1.6393 mm")),
    Sketcher.Constraint("DistanceY", 50, 2, 50, 1, Q("1.6393 mm")),
    Sketcher.Constraint("DistanceY", 61, 2, 61, 1, Q("2.2372 mm")),
    Sketcher.Constraint("DistanceX", -1, 1, 58, 3, Q("9.393 mm")),
    Sketcher.Constraint("Distance", 1, Q("3.7628 mm")),
    Sketcher.Constraint("Distance", 15, Q("3.7628 mm")),
    Sketcher.Constraint("Distance", 21, Q("1.8113 mm")),
    Sketcher.Constraint("Distance", 27, Q("1.8113 mm")),
    Sketcher.Constraint("Distance", 31, Q("3.7628 mm")),
    Sketcher.Constraint("Distance", 37, Q("1.8113 mm")),
    Sketcher.Constraint("Distance", 47, Q("3.7628 mm")),
    Sketcher.Constraint("Distance", 53, Q("1.8113 mm")),
    Sketcher.Constraint("Distance", 57, Q("4.7083 mm")),
    Sketcher.Constraint("Distance", 59, Q("1.8113 mm")),
    Sketcher.Constraint("DistanceY", -1, 1, 4, 3, Q("3.2628 mm")),
    Sketcher.Constraint("DistanceX", -1, 1, 6, 3, Q("9.3734 mm")),
    Sketcher.Constraint("DistanceX", -1, 1, 10, 3, Q("4.8314 mm")),
    Sketcher.Constraint("DistanceX", -1, 1, 12, 3, Q("3.2628 mm")),
    Sketcher.Constraint("DistanceX", 20, 3, -1, 1, Q("3.2628 mm")),
    Sketcher.Constraint("DistanceX", 22, 3, -1, 1, Q("4.8314 mm")),
    Sketcher.Constraint("DistanceY", -1, 1, 26, 3, Q("4.8314 mm")),
    Sketcher.Constraint("DistanceY", -1, 1, 28, 3, Q("3.2628 mm")),
    Sketcher.Constraint("DistanceY", 36, 3, -1, 1, Q("3.2628 mm")),
    Sketcher.Constraint("DistanceY", 38, 3, -1, 1, Q("4.8314 mm")),
    Sketcher.Constraint("DistanceX", 42, 3, -1, 1, Q("4.8837 mm")),
    Sketcher.Constraint("DistanceX", 44, 3, -1, 1, Q("3.2628 mm")),
    Sketcher.Constraint("DistanceX", -1, 1, 52, 3, Q("3.2628 mm")),
    Sketcher.Constraint("DistanceX", -1, 1, 54, 3, Q("4.8314 mm")),
    Sketcher.Constraint("DistanceY", 58, 3, -1, 1, Q("4.8314 mm")),
    Sketcher.Constraint("DistanceY", 60, 3, -1, 1, Q("3.2628 mm")),
    Sketcher.Constraint("DistanceX", -1, 1, 4, 2, Q("8.5414 mm")),
    Sketcher.Constraint("DistanceX", -1, 1, 10, 2, Q("4.4312 mm")),
    Sketcher.Constraint("DistanceX", 20, 2, -1, 1, Q("3.1214 mm")),
    Sketcher.Constraint("DistanceX", 26, 2, -1, 1, Q("9.8222 mm")),
    Sketcher.Constraint("DistanceX", 36, 2, -1, 1, Q("8.5414 mm")),
    Sketcher.Constraint("DistanceX", 42, 2, -1, 1, Q("4.2336 mm")),
    Sketcher.Constraint("DistanceX", -1, 1, 52, 2, Q("3.1214 mm")),
    Sketcher.Constraint("DistanceX", -1, 1, 58, 2, Q("9.8222 mm")),
])
sketch1.setExpression("Constraints[92]", "Params.sketch1_diameter")
sketch1.setExpression("Constraints[93]", "Params.sketch1_radius")
sketch1.setExpression("Constraints[94]", "Params.sketch1_radius2")
sketch1.setExpression("Constraints[95]", "Params.sketch1_radius3")
sketch1.setExpression("Constraints[96]", "Params.sketch1_radius4")
pad1 = body.newObject("PartDesign::Pad", "Pad")
pad1.Profile = sketch1
pad1.setExpression("Length", "Params.pad1_length")

doc.recompute()
